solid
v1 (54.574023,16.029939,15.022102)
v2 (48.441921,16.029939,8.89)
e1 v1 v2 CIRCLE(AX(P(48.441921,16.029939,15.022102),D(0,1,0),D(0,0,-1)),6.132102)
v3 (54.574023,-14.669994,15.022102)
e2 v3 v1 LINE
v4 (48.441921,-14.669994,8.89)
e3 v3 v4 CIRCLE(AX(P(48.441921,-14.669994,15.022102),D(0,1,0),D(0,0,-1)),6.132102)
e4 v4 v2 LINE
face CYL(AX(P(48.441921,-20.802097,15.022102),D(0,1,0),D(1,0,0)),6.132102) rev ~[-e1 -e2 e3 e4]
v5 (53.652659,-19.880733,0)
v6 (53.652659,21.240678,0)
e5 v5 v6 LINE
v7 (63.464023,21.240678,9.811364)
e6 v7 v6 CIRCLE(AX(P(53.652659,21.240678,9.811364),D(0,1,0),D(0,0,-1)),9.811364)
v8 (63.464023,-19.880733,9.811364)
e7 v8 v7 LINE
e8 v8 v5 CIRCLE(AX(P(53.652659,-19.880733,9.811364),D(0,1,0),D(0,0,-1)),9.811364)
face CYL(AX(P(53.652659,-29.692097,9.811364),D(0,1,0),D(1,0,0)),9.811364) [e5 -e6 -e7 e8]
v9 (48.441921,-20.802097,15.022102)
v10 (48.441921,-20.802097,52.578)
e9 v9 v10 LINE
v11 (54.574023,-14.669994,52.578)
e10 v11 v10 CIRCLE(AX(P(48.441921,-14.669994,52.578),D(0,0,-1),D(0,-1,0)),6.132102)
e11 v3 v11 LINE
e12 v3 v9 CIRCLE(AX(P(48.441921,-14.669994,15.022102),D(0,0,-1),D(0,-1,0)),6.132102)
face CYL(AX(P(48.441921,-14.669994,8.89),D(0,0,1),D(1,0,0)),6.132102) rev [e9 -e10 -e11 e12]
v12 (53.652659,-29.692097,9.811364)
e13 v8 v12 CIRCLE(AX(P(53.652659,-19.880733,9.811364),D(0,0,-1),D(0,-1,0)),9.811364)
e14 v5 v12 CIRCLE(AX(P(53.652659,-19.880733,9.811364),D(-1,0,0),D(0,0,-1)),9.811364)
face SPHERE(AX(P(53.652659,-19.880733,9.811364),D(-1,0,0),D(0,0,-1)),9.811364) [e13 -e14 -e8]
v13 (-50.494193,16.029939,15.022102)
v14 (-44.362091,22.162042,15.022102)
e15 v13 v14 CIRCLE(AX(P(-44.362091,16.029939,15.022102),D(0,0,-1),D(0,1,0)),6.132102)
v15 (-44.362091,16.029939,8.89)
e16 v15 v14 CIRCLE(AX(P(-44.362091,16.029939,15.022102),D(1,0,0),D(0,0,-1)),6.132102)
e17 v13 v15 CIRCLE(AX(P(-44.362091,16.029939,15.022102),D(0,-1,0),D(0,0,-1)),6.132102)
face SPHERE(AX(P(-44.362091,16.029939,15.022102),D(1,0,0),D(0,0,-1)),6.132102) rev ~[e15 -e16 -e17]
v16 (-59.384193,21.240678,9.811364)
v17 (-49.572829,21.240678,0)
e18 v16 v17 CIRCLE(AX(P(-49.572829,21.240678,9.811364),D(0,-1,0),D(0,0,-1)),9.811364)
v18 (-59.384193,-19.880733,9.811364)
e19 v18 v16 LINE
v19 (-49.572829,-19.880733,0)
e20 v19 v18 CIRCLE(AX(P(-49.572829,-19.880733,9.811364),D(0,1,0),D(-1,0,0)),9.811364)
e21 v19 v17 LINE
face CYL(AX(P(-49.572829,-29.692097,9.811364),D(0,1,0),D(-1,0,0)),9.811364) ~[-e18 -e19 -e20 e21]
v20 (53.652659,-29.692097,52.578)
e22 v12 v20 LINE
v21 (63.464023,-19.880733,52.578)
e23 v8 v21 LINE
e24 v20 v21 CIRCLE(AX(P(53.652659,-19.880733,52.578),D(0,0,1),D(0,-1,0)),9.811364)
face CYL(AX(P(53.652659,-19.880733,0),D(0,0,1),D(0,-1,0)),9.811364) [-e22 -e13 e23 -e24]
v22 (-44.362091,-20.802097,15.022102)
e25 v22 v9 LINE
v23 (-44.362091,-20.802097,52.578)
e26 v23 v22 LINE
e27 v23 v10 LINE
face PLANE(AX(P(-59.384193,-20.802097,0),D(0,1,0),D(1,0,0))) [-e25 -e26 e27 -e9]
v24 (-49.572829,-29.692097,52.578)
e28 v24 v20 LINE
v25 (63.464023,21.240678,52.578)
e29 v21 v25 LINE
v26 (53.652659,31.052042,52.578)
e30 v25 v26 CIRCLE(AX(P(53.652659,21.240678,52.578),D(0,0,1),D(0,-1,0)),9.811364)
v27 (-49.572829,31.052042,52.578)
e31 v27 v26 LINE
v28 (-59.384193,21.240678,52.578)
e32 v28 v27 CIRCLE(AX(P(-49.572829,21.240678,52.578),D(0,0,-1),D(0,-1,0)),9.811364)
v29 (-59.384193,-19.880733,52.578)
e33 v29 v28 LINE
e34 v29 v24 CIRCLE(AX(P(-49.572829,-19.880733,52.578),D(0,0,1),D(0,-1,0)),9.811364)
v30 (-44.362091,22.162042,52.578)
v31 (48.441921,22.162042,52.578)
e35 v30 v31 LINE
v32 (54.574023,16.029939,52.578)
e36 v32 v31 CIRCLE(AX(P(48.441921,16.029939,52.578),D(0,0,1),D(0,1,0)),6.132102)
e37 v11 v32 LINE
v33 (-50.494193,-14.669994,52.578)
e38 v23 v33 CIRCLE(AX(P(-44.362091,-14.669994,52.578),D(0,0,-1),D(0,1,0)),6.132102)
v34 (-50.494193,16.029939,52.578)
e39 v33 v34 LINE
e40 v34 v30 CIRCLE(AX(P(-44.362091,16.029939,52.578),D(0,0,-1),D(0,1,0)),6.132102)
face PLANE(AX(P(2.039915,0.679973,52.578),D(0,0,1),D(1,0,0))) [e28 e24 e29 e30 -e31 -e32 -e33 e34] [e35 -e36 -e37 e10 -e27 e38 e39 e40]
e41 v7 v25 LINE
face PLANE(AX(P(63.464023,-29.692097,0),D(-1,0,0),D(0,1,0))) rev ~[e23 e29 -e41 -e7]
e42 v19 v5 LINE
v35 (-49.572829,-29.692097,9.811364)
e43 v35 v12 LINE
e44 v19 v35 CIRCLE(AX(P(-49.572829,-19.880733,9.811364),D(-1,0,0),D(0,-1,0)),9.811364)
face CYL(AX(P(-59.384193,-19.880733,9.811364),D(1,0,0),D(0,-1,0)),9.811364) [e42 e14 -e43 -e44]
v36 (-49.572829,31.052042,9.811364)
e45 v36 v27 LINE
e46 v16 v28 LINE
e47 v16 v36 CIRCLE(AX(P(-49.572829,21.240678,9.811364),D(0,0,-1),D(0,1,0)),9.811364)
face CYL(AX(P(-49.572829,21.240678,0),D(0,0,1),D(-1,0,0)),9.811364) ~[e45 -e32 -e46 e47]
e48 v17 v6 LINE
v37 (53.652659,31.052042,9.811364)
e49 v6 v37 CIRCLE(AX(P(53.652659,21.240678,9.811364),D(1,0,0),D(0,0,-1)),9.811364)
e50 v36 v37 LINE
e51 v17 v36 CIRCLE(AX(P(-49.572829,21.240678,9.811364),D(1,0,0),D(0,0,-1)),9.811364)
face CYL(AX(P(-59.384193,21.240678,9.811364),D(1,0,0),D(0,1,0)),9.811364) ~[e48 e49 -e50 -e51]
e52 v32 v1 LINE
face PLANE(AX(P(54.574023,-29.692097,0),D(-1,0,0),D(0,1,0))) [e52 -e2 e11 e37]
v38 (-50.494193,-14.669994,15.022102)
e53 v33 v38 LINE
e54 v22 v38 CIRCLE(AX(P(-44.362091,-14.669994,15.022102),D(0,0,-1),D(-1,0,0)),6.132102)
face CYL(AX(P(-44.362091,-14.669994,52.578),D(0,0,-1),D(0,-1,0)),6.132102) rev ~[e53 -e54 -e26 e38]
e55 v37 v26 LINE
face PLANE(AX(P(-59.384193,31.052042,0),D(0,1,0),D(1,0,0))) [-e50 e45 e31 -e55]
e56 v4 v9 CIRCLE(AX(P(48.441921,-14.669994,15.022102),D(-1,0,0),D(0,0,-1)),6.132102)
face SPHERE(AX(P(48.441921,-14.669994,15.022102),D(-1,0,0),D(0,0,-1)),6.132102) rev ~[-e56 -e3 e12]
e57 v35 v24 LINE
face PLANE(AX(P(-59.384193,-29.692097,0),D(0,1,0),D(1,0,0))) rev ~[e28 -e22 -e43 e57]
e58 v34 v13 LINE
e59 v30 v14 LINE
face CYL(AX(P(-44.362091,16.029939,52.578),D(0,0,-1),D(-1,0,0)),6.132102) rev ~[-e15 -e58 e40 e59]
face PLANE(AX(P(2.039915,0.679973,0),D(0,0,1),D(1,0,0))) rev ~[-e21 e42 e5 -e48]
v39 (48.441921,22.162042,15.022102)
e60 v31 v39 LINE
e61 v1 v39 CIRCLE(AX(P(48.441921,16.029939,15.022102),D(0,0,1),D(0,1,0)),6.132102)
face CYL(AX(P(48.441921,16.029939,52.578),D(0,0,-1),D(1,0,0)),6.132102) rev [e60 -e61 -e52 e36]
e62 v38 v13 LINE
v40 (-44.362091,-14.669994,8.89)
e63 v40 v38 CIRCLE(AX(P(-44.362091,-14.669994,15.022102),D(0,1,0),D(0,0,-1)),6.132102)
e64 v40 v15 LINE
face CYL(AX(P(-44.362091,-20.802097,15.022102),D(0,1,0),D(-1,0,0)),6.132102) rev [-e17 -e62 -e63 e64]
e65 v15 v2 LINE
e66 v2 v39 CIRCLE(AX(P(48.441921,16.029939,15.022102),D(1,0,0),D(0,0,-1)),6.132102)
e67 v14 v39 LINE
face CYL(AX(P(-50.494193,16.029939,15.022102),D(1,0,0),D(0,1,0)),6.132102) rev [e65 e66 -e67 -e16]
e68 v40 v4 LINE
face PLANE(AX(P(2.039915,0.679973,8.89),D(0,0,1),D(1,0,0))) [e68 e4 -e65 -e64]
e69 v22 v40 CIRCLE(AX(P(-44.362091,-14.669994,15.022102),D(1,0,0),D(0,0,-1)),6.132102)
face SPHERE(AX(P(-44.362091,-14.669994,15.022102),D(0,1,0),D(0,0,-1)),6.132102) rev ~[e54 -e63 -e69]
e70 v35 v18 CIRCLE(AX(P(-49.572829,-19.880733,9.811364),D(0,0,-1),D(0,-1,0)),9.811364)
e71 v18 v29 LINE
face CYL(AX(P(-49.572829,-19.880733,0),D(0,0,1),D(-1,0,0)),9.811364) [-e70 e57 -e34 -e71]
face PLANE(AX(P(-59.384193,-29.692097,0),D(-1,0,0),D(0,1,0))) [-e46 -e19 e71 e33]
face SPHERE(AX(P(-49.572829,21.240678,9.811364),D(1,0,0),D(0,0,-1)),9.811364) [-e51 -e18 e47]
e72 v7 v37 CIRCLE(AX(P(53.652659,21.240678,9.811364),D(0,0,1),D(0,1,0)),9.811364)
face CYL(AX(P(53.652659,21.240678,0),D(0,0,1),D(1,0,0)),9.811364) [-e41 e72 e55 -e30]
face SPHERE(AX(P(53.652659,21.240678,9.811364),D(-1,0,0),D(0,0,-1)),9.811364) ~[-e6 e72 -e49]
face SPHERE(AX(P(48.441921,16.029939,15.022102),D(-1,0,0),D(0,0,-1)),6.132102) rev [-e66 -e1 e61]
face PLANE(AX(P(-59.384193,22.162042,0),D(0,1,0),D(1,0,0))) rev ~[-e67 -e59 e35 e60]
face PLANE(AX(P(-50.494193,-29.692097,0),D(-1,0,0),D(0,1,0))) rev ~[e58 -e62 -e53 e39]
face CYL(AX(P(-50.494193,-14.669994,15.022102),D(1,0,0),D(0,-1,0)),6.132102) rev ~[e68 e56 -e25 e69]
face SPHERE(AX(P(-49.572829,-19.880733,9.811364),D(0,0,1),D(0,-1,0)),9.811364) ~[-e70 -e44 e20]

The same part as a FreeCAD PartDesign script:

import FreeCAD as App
import Part
import Sketcher


def edges_at(feature, points):
    """Names of the edges that pass closest to the given points."""
    edges = feature.Shape.Edges
    near = lambda p: min(range(len(edges)), key=lambda i: edges[i].distToShape(Part.Vertex(*p))[0])
    return sorted({f"Edge{near(p) + 1}" for p in points})


def faces_at(feature, points):
    """Names of the faces that lie closest to the given points."""
    faces = feature.Shape.Faces
    near = lambda p: min(range(len(faces)), key=lambda i: faces[i].distToShape(Part.Vertex(*p))[0])
    return sorted({f"Face{near(p) + 1}" for p in points})


def add_polygon(sketch, points):
    """Adds a closed chain of lines whose ends are joined by coincident constraints."""
    first, n = sketch.GeometryCount, len(points)
    for a, b in zip(points, points[1:] + points[:1]):
        sketch.addGeometry(Part.LineSegment(App.Vector(*a, 0), App.Vector(*b, 0)), False)
    for i in range(n):
        sketch.addConstraint(Sketcher.Constraint("Coincident", first + i, 2, first + (i + 1) % n, 1))

doc = App.newDocument("Part")
params = doc.addObject("Spreadsheet::Sheet", "Params")
for row, (alias, value) in enumerate([
    ("pad1_length", "2.07 in"),
    ("thickness_wall", "0.35 in"),
    ("fillet_radius", "9.811364 mm"),
    ("fillet2_radius", "6.132102 mm"),
], start=1):
    params.set(f"A{row}", alias)
    params.set(f"B{row}", "=" + value)
    params.setAlias(f"B{row}", alias)

body = doc.addObject("PartDesign::Body", "Body")

sketch1 = body.newObject("Sketcher::SketchObject", "Sketch")
sketch1.AttachmentSupport = (doc.getObject("XY_Plane"), [""])
sketch1.MapMode = "FlatFace"
add_polygon(sketch1, [(-59, 31), (-59, -30), (63, -30), (63, 31)])
sketch1.addConstraint(Sketcher.Constraint("Vertical", 0))
sketch1.addConstraint(Sketcher.Constraint("Horizontal", 1))
sketch1.addConstraint(Sketcher.Constraint("Vertical", 2))
sketch1.addConstraint(Sketcher.Constraint("Horizontal", 3))
sketch1.addConstraint(Sketcher.Constraint("DistanceY", 0, 2, 0, 1, 60.744138))
sketch1.addConstraint(Sketcher.Constraint("DistanceX", 1, 1, 1, 2, 122.848216))
sketch1.addConstraint(Sketcher.Constraint("DistanceY", -1, 1, 2, 2, 31.052042))
sketch1.addConstraint(Sketcher.Constraint("DistanceX", 0, 2, -1, 1, 59.384193))
pad1 = body.newObject("PartDesign::Pad", "Pad")
pad1.Profile = sketch1
pad1.setExpression("Length", "Params.pad1_length")
doc.recompute()

thickness = body.newObject("PartDesign::Thickness", "Thickness")
thickness.Base = (pad1, faces_at(pad1, [(2.04, 0.68, 52.578)]))
thickness.setExpression("Value", "Params.thickness_wall")
thickness.Reversed = True
thickness.Join = "Arc"
doc.recompute()

fillet = body.newObject("PartDesign::Fillet", "Fillet")
fillet.Base = (thickness, edges_at(thickness, [
    (-59.384, -29.692, 26.289),
    (2.04, -29.692, 0),
    (2.04, 31.052, 0),
    (-59.384, 0.68, 0),
    (63.464, 0.68, 0),
    (-59.384, 31.052, 26.289),
    (63.464, 31.052, 26.289),
    (63.464, -29.692, 26.289),
]))
fillet.setExpression("Radius", "Params.fillet_radius")
doc.recompute()

fillet2 = body.newObject("PartDesign::Fillet", "Fillet001")
fillet2.Base = (fillet, edges_at(fillet, [
    (2.04, 22.162, 8.89),
    (-50.494, 0.68, 8.89),
    (2.04, -20.802, 8.89),
    (54.574, 0.68, 8.89),
    (-50.494, -20.802, 30.734),
    (-50.494, 22.162, 30.734),
    (54.574, -20.802, 30.734),
    (54.574, 22.162, 30.734),
]))
fillet2.setExpression("Radius", "Params.fillet2_radius")

doc.recompute()
